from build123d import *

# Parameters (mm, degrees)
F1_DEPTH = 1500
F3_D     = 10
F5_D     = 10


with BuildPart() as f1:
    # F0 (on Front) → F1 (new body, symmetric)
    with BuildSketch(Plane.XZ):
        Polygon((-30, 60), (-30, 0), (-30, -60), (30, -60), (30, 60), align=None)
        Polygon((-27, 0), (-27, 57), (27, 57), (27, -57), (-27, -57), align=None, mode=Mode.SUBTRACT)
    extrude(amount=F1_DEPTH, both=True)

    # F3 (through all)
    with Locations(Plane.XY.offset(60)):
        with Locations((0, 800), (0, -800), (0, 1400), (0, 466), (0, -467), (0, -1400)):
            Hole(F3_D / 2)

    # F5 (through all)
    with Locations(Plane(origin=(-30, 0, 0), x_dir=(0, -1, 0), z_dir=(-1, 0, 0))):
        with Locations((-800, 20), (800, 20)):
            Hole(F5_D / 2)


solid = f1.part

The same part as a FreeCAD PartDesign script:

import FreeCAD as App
import Part
import Sketcher
Q = App.Units.Quantity


def add_polygon(sketch, points):
    """Adds a closed chain of lines whose ends are joined by coincident constraints."""
    first, n = sketch.GeometryCount, len(points)
    for a, b in zip(points, points[1:] + points[:1]):
        sketch.addGeometry(Part.LineSegment(App.Vector(*a, 0), App.Vector(*b, 0)), False)
    for i in range(n):
        sketch.addConstraint(Sketcher.Constraint("Coincident", first + i, 2, first + (i + 1) % n, 1))

doc = App.newDocument("Part")
params = doc.addObject("Spreadsheet::Sheet", "Params")
for row, (alias, value) in enumerate([
    ("sketch1_width", "60 mm"),
    ("sketch1_width2", "54 mm"),
    ("sketch1_height", "120 mm"),
    ("sketch1_height2", "114 mm"),
    ("pad1_length", "3000 mm"),
    ("sketch2_diameter", "10 mm"),
    ("hole_diameter", "10 mm"),
    ("sketch3_diameter", "10 mm"),
    ("hole2_diameter", "10 mm"),
], start=1):
    params.set(f"A{row}", alias)
    params.set(f"B{row}", "=" + value)
    params.setAlias(f"B{row}", alias)

body = doc.addObject("PartDesign::Body", "Body")

# Sketch on XZ plane
sketch1 = body.newObject("Sketcher::SketchObject", "Sketch")
sketch1.AttachmentSupport = (doc.getObject("XZ_Plane"), [""])
sketch1.MapMode = "FlatFace"
add_polygon(sketch1, [(-30, 60), (-30, -60), (30, -60), (30, 60)])  # lines 0-3
add_polygon(sketch1, [(-27, -57), (-27, 57), (27, 57), (27, -57)])  # lines 4-7
sketch1.addConstraint(Sketcher.Constraint("Vertical", 0))
sketch1.addConstraint(Sketcher.Constraint("Horizontal", 1))
sketch1.addConstraint(Sketcher.Constraint("Vertical", 2))
sketch1.addConstraint(Sketcher.Constraint("Horizontal", 3))
sketch1.addConstraint(Sketcher.Constraint("Vertical", 4))
sketch1.addConstraint(Sketcher.Constraint("Horizontal", 5))
sketch1.addConstraint(Sketcher.Constraint("Vertical", 6))
sketch1.addConstraint(Sketcher.Constraint("Horizontal", 7))
sketch1.addConstraint(Sketcher.Constraint("Symmetric", 0, 2, 2, 2, -1, 1))
sketch1.addConstraint(Sketcher.Constraint("Symmetric", 4, 2, 6, 2, -1, 1))
sketch1.addConstraint(Sketcher.Constraint("DistanceX", 1, 1, 1, 2, Q("60 mm")))
sketch1.addConstraint(Sketcher.Constraint("DistanceX", 5, 1, 5, 2, Q("54 mm")))
sketch1.addConstraint(Sketcher.Constraint("DistanceY", 0, 2, 0, 1, Q("120 mm")))
sketch1.addConstraint(Sketcher.Constraint("DistanceY", 4, 1, 4, 2, Q("114 mm")))
sketch1.setExpression("Constraints[18]", "Params.sketch1_width")
sketch1.setExpression("Constraints[19]", "Params.sketch1_width2")
sketch1.setExpression("Constraints[20]", "Params.sketch1_height")
sketch1.setExpression("Constraints[21]", "Params.sketch1_height2")
pad1 = body.newObject("PartDesign::Pad", "Pad")
pad1.Profile = sketch1
pad1.setExpression("Length", "Params.pad1_length")
pad1.Midplane = True

# Sketch on XY plane
sketch2 = body.newObject("Sketcher::SketchObject", "Sketch001")
sketch2.AttachmentSupport = (doc.getObject("XY_Plane"), [""])
sketch2.MapMode = "FlatFace"
sketch2.AttachmentOffset = App.Placement(App.Vector(0, 0, 60), App.Rotation())
sketch2.addGeometry(Part.Circle(App.Vector(0, 800, 0), App.Vector(0, 0, 1), 5), False)
sketch2.addGeometry(Part.Circle(App.Vector(0, -800, 0), App.Vector(0, 0, 1), 5), False)
sketch2.addGeometry(Part.Circle(App.Vector(0, 1400, 0), App.Vector(0, 0, 1), 5), False)
sketch2.addGeometry(Part.Circle(App.Vector(0, 466, 0), App.Vector(0, 0, 1), 5), False)
sketch2.addGeometry(Part.Circle(App.Vector(0, -467, 0), App.Vector(0, 0, 1), 5), False)
sketch2.addGeometry(Part.Circle(App.Vector(0, -1400, 0), App.Vector(0, 0, 1), 5), False)
sketch2.addConstraint(Sketcher.Constraint("Equal", 0, 1))
sketch2.addConstraint(Sketcher.Constraint("Equal", 1, 2))
sketch2.addConstraint(Sketcher.Constraint("Equal", 2, 3))
sketch2.addConstraint(Sketcher.Constraint("Equal", 3, 4))
sketch2.addConstraint(Sketcher.Constraint("Equal", 4, 5))
sketch2.addConstraint(Sketcher.Constraint("Symmetric", 0, 3, 1, 3, -1, 1))
sketch2.addConstraint(Sketcher.Constraint("Symmetric", 2, 3, 5, 3, -1, 1))
sketch2.addConstraint(Sketcher.Constraint("PointOnObject", 0, 3, -2))
sketch2.addConstraint(Sketcher.Constraint("PointOnObject", 2, 3, -2))
sketch2.addConstraint(Sketcher.Constraint("PointOnObject", 3, 3, -2))
sketch2.addConstraint(Sketcher.Constraint("PointOnObject", 4, 3, -2))
sketch2.addConstraint(Sketcher.Constraint("Diameter", 0, Q("10 mm")))
sketch2.addConstraint(Sketcher.Constraint("DistanceY", -1, 1, 0, 3, Q("800 mm")))
sketch2.addConstraint(Sketcher.Constraint("DistanceY", -1, 1, 2, 3, Q("1400 mm")))
sketch2.addConstraint(Sketcher.Constraint("DistanceY", -1, 1, 3, 3, Q("466 mm")))
sketch2.addConstraint(Sketcher.Constraint("DistanceY", 4, 3, -1, 1, Q("467 mm")))
sketch2.setExpression("Constraints[11]", "Params.sketch2_diameter")
doc.recompute()
hole = body.newObject("PartDesign::Hole", "Hole")
hole.Profile = sketch2
hole.ThreadType = "None"
hole.setExpression("Diameter", "Params.hole_diameter")
hole.DepthType = "ThroughAll"

# Sketch on YZ plane
sketch3 = body.newObject("Sketcher::SketchObject", "Sketch002")
sketch3.AttachmentSupport = (doc.getObject("YZ_Plane"), [""])
sketch3.MapMode = "FlatFace"
sketch3.AttachmentOffset = App.Placement(App.Vector(0, 0, -30), App.Rotation())
sketch3.addGeometry(Part.Circle(App.Vector(800, 20, 0), App.Vector(0, 0, 1), 5), False)
sketch3.addGeometry(Part.Circle(App.Vector(-800, 20, 0), App.Vector(0, 0, 1), 5), False)
sketch3.addConstraint(Sketcher.Constraint("Equal", 0, 1))
sketch3.addConstraint(Sketcher.Constraint("Symmetric", 0, 3, 1, 3, -2))
sketch3.addConstraint(Sketcher.Constraint("Diameter", 0, Q("10 mm")))
sketch3.addConstraint(Sketcher.Constraint("DistanceX", -1, 1, 0, 3, Q("800 mm")))
sketch3.addConstraint(Sketcher.Constraint("DistanceY", -1, 1, 0, 3, Q("20 mm")))
sketch3.setExpression("Constraints[2]", "Params.sketch3_diameter")
doc.recompute()
hole2 = body.newObject("PartDesign::Hole", "Hole001")
hole2.Profile = sketch3
hole2.ThreadType = "None"
hole2.setExpression("Diameter", "Params.hole2_diameter")
hole2.DepthType = "ThroughAll"
hole2.Reversed = True

doc.recompute()
